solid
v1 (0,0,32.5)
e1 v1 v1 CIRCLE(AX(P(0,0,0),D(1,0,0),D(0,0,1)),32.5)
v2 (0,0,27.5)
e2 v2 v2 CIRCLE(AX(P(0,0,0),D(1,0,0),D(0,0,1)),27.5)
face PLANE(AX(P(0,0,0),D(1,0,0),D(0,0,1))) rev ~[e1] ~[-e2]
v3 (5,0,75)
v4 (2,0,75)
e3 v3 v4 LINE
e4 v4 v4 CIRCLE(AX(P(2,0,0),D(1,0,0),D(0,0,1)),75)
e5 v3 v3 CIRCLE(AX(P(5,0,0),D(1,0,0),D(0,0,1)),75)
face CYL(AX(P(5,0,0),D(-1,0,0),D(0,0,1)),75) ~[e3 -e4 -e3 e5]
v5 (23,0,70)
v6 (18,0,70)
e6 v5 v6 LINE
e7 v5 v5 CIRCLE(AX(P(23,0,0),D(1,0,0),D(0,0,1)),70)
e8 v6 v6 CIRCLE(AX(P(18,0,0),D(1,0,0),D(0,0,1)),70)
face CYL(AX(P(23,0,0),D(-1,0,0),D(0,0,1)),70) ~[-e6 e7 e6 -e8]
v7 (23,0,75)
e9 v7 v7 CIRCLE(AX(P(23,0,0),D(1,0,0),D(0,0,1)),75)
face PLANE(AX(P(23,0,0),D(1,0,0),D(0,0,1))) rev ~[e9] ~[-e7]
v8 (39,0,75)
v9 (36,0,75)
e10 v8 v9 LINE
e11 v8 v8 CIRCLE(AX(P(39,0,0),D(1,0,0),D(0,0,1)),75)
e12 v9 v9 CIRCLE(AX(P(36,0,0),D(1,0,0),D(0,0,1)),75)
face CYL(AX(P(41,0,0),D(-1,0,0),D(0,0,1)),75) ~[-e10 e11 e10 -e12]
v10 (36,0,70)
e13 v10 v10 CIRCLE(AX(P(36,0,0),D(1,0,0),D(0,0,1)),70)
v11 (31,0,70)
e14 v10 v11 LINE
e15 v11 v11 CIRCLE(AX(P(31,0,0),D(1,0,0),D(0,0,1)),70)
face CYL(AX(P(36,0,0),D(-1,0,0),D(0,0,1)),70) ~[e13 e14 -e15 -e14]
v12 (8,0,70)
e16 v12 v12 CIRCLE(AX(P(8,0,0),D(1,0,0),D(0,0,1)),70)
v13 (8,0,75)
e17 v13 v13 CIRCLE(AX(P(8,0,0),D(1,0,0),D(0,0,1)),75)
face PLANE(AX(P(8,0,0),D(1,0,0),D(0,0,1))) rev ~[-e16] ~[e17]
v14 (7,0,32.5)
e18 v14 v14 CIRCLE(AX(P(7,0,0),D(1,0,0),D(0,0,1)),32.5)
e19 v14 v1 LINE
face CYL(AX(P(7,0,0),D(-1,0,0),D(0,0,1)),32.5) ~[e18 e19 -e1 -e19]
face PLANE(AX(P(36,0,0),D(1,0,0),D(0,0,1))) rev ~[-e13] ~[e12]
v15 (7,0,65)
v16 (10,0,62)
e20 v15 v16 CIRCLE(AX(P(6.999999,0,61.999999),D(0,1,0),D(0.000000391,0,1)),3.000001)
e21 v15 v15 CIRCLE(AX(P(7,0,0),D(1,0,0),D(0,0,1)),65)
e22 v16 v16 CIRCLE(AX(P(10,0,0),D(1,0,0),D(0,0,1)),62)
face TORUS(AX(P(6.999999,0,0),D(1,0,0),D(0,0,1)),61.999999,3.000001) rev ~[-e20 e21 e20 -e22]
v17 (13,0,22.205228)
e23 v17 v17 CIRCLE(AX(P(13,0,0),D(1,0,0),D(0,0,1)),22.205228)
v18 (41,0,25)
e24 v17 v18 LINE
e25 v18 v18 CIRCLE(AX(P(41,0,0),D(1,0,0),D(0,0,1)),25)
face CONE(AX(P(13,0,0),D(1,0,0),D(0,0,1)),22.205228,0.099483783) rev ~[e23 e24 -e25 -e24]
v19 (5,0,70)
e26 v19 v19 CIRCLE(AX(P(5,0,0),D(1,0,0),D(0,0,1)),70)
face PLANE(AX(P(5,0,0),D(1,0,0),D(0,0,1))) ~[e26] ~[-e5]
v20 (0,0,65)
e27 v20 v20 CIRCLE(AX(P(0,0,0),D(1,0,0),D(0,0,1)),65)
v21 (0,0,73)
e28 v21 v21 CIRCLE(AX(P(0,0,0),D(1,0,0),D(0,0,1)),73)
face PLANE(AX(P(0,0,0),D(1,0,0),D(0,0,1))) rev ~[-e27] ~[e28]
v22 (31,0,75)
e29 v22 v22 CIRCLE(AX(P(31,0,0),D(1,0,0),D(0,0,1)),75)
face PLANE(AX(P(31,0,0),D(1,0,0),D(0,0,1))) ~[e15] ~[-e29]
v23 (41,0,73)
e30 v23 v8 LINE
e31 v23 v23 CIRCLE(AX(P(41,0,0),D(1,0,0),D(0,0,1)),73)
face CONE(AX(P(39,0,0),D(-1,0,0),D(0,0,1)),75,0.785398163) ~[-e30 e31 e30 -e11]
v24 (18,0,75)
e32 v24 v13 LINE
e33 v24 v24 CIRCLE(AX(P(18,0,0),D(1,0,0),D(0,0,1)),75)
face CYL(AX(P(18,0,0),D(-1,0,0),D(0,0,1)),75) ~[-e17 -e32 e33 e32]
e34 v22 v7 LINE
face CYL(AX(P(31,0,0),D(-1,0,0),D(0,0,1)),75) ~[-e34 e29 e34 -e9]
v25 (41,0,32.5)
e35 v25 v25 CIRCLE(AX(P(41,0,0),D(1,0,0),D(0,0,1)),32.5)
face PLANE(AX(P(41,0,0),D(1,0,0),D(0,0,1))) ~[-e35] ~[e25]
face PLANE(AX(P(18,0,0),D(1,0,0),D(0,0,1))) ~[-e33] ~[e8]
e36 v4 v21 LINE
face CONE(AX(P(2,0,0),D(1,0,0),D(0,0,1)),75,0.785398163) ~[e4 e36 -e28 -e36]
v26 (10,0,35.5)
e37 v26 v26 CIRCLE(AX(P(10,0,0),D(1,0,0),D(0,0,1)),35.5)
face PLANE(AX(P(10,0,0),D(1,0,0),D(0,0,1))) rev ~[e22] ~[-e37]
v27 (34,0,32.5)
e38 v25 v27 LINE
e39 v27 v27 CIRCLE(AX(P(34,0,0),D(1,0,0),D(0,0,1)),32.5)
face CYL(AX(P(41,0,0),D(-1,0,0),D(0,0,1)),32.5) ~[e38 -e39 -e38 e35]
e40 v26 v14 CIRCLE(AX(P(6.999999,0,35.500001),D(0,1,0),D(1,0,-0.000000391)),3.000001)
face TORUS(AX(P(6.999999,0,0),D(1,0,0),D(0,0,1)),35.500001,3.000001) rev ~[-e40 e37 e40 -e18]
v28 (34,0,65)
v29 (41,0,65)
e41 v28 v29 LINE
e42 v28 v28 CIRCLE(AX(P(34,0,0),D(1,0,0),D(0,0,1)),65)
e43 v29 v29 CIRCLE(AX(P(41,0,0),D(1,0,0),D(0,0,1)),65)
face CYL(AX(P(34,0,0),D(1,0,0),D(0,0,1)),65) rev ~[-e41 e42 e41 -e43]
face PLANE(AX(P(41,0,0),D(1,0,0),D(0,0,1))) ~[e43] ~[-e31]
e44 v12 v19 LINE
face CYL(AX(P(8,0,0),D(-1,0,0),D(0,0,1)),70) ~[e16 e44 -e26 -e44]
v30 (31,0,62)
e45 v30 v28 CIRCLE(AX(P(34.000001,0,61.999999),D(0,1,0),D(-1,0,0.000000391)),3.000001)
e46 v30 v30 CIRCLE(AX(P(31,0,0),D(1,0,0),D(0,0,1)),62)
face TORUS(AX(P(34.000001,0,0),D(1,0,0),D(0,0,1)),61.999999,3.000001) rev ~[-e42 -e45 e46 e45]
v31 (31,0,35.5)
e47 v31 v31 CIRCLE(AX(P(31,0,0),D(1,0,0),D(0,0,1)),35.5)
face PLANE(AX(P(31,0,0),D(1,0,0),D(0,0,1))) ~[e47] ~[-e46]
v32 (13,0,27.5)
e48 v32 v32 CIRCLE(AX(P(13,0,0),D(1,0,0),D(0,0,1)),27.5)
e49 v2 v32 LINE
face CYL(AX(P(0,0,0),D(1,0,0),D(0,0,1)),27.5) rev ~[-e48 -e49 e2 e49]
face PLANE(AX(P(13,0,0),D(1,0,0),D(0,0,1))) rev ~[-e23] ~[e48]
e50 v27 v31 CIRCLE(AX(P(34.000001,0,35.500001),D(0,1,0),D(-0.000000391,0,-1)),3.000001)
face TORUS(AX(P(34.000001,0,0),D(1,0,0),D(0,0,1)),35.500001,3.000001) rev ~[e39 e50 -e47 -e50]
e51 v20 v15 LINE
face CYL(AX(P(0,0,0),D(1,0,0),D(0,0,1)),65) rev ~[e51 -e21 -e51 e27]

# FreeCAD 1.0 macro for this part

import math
import FreeCAD as App
import Part
import Sketcher
Q = App.Units.Quantity


def edges_at(feature, points):
    """Names of the edges that pass closest to the given points."""
    edges = feature.Shape.Edges
    near = lambda p: min(range(len(edges)), key=lambda i: edges[i].distToShape(Part.Vertex(*p))[0])
    return sorted({f"Edge{near(p) + 1}" for p in points})

doc = App.newDocument("Part")
params = doc.addObject("Spreadsheet::Sheet", "Params")
for row, (alias, value) in enumerate([
    ("sketch1_radius", "3.000001 mm"),
    ("sketch1_width", "13 mm"),
    ("sketch1_width2", "7 mm"),
    ("sketch1_width3", "8 mm"),
    ("sketch1_width4", "10 mm"),
    ("revolution_angle", "360 deg"),
    ("chamfer_size", "2 mm"),
], start=1):
    params.set(f"A{row}", alias)
    params.set(f"B{row}", "=" + value)
    params.setAlias(f"B{row}", alias)

body = doc.addObject("PartDesign::Body", "Body")

# Sketch on XZ plane
sketch1 = doc.addObject("Sketcher::SketchObject", "Sketch")
body.addObject(sketch1)
sketch1.AttachmentSupport = (doc.XZ_Plane, [""])
sketch1.MapMode = "FlatFace"
sketch1.addGeometry([
    Part.LineSegment(App.Vector(0, 32.5, 0), App.Vector(0, 27.5, 0)),  # 0
    Part.LineSegment(App.Vector(0, 27.5, 0), App.Vector(13, 27.5, 0)),  # 1
    Part.LineSegment(App.Vector(13, 27.5, 0), App.Vector(13, 22.205228, 0)),  # 2
    Part.LineSegment(App.Vector(13, 22.205228, 0), App.Vector(41, 25, 0)),  # 3
    Part.LineSegment(App.Vector(41, 25, 0), App.Vector(41, 32.5, 0)),  # 4
    Part.LineSegment(App.Vector(41, 32.5, 0), App.Vector(34, 32.5, 0)),  # 5
    Part.ArcOfCircle(Part.Circle(App.Vector(34.000001, 35.500001, 0), App.Vector(0, 0, 1), 3.000001), math.radians(-179.999978), math.radians(-90.000022)),  # 6
    Part.LineSegment(App.Vector(31, 35.5, 0), App.Vector(31, 62, 0)),  # 7
    Part.ArcOfCircle(Part.Circle(App.Vector(34.000001, 61.999999, 0), App.Vector(0, 0, 1), 3.000001), math.radians(90.000022), math.radians(179.999978)),  # 8
    Part.LineSegment(App.Vector(34, 65, 0), App.Vector(41, 65, 0)),  # 9
    Part.LineSegment(App.Vector(41, 65, 0), App.Vector(41, 75, 0)),  # 10
    Part.LineSegment(App.Vector(41, 75, 0), App.Vector(36, 75, 0)),  # 11
    Part.LineSegment(App.Vector(36, 75, 0), App.Vector(36, 70, 0)),  # 12
    Part.LineSegment(App.Vector(36, 70, 0), App.Vector(31, 70, 0)),  # 13
    Part.LineSegment(App.Vector(31, 70, 0), App.Vector(31, 75, 0)),  # 14
    Part.LineSegment(App.Vector(31, 75, 0), App.Vector(23, 75, 0)),  # 15
    Part.LineSegment(App.Vector(23, 75, 0), App.Vector(23, 70, 0)),  # 16
    Part.LineSegment(App.Vector(23, 70, 0), App.Vector(18, 70, 0)),  # 17
    Part.LineSegment(App.Vector(18, 70, 0), App.Vector(18, 75, 0)),  # 18
    Part.LineSegment(App.Vector(18, 75, 0), App.Vector(8, 75, 0)),  # 19
    Part.LineSegment(App.Vector(8, 75, 0), App.Vector(8, 70, 0)),  # 20
    Part.LineSegment(App.Vector(8, 70, 0), App.Vector(5, 70, 0)),  # 21
    Part.LineSegment(App.Vector(5, 70, 0), App.Vector(5, 75, 0)),  # 22
    Part.LineSegment(App.Vector(5, 75, 0), App.Vector(0, 75, 0)),  # 23
    Part.LineSegment(App.Vector(0, 75, 0), App.Vector(0, 65, 0)),  # 24
    Part.LineSegment(App.Vector(0, 65, 0), App.Vector(7, 65, 0)),  # 25
    Part.ArcOfCircle(Part.Circle(App.Vector(6.999999, 61.999999, 0), App.Vector(0, 0, 1), 3.000001), math.radians(0.000022), math.radians(89.999978)),  # 26
    Part.LineSegment(App.Vector(10, 62, 0), App.Vector(10, 35.5, 0)),  # 27
    Part.ArcOfCircle(Part.Circle(App.Vector(6.999999, 35.500001, 0), App.Vector(0, 0, 1), 3.000001), math.radians(-89.999978), math.radians(-0.000022)),  # 28
    Part.LineSegment(App.Vector(7, 32.5, 0), App.Vector(0, 32.5, 0)),  # 29
], False)
sketch1.addConstraint([
    Sketcher.Constraint("Coincident", 0, 2, 1, 1),
    Sketcher.Constraint("Coincident", 1, 2, 2, 1),
    Sketcher.Constraint("Coincident", 2, 2, 3, 1),
    Sketcher.Constraint("Coincident", 3, 2, 4, 1),
    Sketcher.Constraint("Coincident", 4, 2, 5, 1),
    Sketcher.Constraint("Tangent", 5, 2, 6, 2),
    Sketcher.Constraint("Tangent", 6, 1, 7, 1),
    Sketcher.Constraint("Tangent", 7, 2, 8, 2),
    Sketcher.Constraint("Tangent", 8, 1, 9, 1),
    Sketcher.Constraint("Coincident", 9, 2, 10, 1),
    Sketcher.Constraint("Coincident", 10, 2, 11, 1),
    Sketcher.Constraint("Coincident", 11, 2, 12, 1),
    Sketcher.Constraint("Coincident", 12, 2, 13, 1),
    Sketcher.Constraint("Coincident", 13, 2, 14, 1),
    Sketcher.Constraint("Coincident", 14, 2, 15, 1),
    Sketcher.Constraint("Coincident", 15, 2, 16, 1),
    Sketcher.Constraint("Coincident", 16, 2, 17, 1),
    Sketcher.Constraint("Coincident", 17, 2, 18, 1),
    Sketcher.Constraint("Coincident", 18, 2, 19, 1),
    Sketcher.Constraint("Coincident", 19, 2, 20, 1),
    Sketcher.Constraint("Coincident", 20, 2, 21, 1),
    Sketcher.Constraint("Coincident", 21, 2, 22, 1),
    Sketcher.Constraint("Coincident", 22, 2, 23, 1),
    Sketcher.Constraint("Coincident", 23, 2, 24, 1),
    Sketcher.Constraint("Coincident", 24, 2, 25, 1),
    Sketcher.Constraint("Tangent", 25, 2, 26, 2),
    Sketcher.Constraint("Tangent", 26, 1, 27, 1),
    Sketcher.Constraint("Tangent", 27, 2, 28, 2),
    Sketcher.Constraint("Tangent", 28, 1, 29, 1),
    Sketcher.Constraint("Coincident", 29, 2, 0, 1),
    Sketcher.Constraint("Vertical", 0),
    Sketcher.Constraint("Horizontal", 1),
    Sketcher.Constraint("Vertical", 2),
    Sketcher.Constraint("Vertical", 4),
    Sketcher.Constraint("Horizontal", 5),
    Sketcher.Constraint("Vertical", 7),
    Sketcher.Constraint("Horizontal", 9),
    Sketcher.Constraint("Vertical", 10),
    Sketcher.Constraint("Horizontal", 11),
    Sketcher.Constraint("Vertical", 12),
    Sketcher.Constraint("Horizontal", 13),
    Sketcher.Constraint("Vertical", 14),
    Sketcher.Constraint("Horizontal", 15),
    Sketcher.Constraint("Vertical", 16),
    Sketcher.Constraint("Horizontal", 17),
    Sketcher.Constraint("Vertical", 18),
    Sketcher.Constraint("Horizontal", 19),
    Sketcher.Constraint("Vertical", 20),
    Sketcher.Constraint("Horizontal", 21),
    Sketcher.Constraint("Vertical", 22),
    Sketcher.Constraint("Horizontal", 23),
    Sketcher.Constraint("Vertical", 24),
    Sketcher.Constraint("Horizontal", 25),
    Sketcher.Constraint("Vertical", 27),
    Sketcher.Constraint("Horizontal", 29),
    Sketcher.Constraint("Equal", 6, 8),
    Sketcher.Constraint("Equal", 8, 26),
    Sketcher.Constraint("Equal", 26, 28),
    Sketcher.Constraint("PointOnObject", 0, 2, -2),
    Sketcher.Constraint("PointOnObject", 23, 2, -2),
    Sketcher.Constraint("Horizontal", 8, 3, 26, 3),
    Sketcher.Constraint("Horizontal", 6, 3, 28, 3),
    Sketcher.Constraint("Horizontal", 11, 2, 14, 2),
    Sketcher.Constraint("Horizontal", 13, 2, 16, 2),
    Sketcher.Constraint("Horizontal", 15, 2, 18, 2),
    Sketcher.Constraint("Horizontal", 17, 2, 20, 2),
    Sketcher.Constraint("Horizontal", 19, 2, 22, 2),
    Sketcher.Constraint("Vertical", 4, 2, 9, 2),
    Sketcher.Constraint("Vertical", 7, 2, 13, 2),
    Sketcher.Constraint("Equal", 11, 13),
    Sketcher.Constraint("Equal", 13, 17),
    Sketcher.Constraint("Equal", 17, 23),
    Sketcher.Constraint("Equal", 9, 25),
    Sketcher.Constraint("Equal", 23, 0),
    Sketcher.Constraint("Equal", 19, 10),
    Sketcher.Constraint("Equal", 0, 12),
    Sketcher.Constraint("Radius", 6, 3.000001),
    Sketcher.Constraint("DistanceX", 1, 1, 1, 2, 13.0),
    Sketcher.Constraint("DistanceX", 5, 2, 5, 1, 7.0),
    Sketcher.Constraint("DistanceX", 15, 2, 15, 1, 8.0),
    Sketcher.Constraint("DistanceX", 19, 2, 19, 1, 10.0),
    Sketcher.Constraint("DistanceX", 21, 2, 21, 1, 3.0),
    Sketcher.Constraint("DistanceY", 4, 1, 4, 2, 7.5),
    Sketcher.Constraint("DistanceY", 7, 1, 7, 2, 26.5),
    Sketcher.Constraint("DistanceY", -1, 1, 8, 3, 61.999999),
    Sketcher.Constraint("Angle", 3, Q("5.700001 deg")),
])
sketch1.setExpression("Constraints[76]", "Params.sketch1_radius")
sketch1.setExpression("Constraints[77]", "Params.sketch1_width")
sketch1.setExpression("Constraints[78]", "Params.sketch1_width2")
sketch1.setExpression("Constraints[79]", "Params.sketch1_width3")
sketch1.setExpression("Constraints[80]", "Params.sketch1_width4")
revolution = doc.addObject("PartDesign::Revolution", "Revolution")
body.addObject(revolution)
revolution.Profile = sketch1
revolution.ReferenceAxis = (sketch1, ["H_Axis"])
revolution.setExpression("Angle", "Params.revolution_angle")
doc.recompute()

chamfer = doc.addObject("PartDesign::Chamfer", "Chamfer")
body.addObject(chamfer)
chamfer.Base = (revolution, edges_at(revolution, [(41, 0, -75), (0, 0, -75)]))
chamfer.setExpression("Size", "Params.chamfer_size")

doc.recompute()
